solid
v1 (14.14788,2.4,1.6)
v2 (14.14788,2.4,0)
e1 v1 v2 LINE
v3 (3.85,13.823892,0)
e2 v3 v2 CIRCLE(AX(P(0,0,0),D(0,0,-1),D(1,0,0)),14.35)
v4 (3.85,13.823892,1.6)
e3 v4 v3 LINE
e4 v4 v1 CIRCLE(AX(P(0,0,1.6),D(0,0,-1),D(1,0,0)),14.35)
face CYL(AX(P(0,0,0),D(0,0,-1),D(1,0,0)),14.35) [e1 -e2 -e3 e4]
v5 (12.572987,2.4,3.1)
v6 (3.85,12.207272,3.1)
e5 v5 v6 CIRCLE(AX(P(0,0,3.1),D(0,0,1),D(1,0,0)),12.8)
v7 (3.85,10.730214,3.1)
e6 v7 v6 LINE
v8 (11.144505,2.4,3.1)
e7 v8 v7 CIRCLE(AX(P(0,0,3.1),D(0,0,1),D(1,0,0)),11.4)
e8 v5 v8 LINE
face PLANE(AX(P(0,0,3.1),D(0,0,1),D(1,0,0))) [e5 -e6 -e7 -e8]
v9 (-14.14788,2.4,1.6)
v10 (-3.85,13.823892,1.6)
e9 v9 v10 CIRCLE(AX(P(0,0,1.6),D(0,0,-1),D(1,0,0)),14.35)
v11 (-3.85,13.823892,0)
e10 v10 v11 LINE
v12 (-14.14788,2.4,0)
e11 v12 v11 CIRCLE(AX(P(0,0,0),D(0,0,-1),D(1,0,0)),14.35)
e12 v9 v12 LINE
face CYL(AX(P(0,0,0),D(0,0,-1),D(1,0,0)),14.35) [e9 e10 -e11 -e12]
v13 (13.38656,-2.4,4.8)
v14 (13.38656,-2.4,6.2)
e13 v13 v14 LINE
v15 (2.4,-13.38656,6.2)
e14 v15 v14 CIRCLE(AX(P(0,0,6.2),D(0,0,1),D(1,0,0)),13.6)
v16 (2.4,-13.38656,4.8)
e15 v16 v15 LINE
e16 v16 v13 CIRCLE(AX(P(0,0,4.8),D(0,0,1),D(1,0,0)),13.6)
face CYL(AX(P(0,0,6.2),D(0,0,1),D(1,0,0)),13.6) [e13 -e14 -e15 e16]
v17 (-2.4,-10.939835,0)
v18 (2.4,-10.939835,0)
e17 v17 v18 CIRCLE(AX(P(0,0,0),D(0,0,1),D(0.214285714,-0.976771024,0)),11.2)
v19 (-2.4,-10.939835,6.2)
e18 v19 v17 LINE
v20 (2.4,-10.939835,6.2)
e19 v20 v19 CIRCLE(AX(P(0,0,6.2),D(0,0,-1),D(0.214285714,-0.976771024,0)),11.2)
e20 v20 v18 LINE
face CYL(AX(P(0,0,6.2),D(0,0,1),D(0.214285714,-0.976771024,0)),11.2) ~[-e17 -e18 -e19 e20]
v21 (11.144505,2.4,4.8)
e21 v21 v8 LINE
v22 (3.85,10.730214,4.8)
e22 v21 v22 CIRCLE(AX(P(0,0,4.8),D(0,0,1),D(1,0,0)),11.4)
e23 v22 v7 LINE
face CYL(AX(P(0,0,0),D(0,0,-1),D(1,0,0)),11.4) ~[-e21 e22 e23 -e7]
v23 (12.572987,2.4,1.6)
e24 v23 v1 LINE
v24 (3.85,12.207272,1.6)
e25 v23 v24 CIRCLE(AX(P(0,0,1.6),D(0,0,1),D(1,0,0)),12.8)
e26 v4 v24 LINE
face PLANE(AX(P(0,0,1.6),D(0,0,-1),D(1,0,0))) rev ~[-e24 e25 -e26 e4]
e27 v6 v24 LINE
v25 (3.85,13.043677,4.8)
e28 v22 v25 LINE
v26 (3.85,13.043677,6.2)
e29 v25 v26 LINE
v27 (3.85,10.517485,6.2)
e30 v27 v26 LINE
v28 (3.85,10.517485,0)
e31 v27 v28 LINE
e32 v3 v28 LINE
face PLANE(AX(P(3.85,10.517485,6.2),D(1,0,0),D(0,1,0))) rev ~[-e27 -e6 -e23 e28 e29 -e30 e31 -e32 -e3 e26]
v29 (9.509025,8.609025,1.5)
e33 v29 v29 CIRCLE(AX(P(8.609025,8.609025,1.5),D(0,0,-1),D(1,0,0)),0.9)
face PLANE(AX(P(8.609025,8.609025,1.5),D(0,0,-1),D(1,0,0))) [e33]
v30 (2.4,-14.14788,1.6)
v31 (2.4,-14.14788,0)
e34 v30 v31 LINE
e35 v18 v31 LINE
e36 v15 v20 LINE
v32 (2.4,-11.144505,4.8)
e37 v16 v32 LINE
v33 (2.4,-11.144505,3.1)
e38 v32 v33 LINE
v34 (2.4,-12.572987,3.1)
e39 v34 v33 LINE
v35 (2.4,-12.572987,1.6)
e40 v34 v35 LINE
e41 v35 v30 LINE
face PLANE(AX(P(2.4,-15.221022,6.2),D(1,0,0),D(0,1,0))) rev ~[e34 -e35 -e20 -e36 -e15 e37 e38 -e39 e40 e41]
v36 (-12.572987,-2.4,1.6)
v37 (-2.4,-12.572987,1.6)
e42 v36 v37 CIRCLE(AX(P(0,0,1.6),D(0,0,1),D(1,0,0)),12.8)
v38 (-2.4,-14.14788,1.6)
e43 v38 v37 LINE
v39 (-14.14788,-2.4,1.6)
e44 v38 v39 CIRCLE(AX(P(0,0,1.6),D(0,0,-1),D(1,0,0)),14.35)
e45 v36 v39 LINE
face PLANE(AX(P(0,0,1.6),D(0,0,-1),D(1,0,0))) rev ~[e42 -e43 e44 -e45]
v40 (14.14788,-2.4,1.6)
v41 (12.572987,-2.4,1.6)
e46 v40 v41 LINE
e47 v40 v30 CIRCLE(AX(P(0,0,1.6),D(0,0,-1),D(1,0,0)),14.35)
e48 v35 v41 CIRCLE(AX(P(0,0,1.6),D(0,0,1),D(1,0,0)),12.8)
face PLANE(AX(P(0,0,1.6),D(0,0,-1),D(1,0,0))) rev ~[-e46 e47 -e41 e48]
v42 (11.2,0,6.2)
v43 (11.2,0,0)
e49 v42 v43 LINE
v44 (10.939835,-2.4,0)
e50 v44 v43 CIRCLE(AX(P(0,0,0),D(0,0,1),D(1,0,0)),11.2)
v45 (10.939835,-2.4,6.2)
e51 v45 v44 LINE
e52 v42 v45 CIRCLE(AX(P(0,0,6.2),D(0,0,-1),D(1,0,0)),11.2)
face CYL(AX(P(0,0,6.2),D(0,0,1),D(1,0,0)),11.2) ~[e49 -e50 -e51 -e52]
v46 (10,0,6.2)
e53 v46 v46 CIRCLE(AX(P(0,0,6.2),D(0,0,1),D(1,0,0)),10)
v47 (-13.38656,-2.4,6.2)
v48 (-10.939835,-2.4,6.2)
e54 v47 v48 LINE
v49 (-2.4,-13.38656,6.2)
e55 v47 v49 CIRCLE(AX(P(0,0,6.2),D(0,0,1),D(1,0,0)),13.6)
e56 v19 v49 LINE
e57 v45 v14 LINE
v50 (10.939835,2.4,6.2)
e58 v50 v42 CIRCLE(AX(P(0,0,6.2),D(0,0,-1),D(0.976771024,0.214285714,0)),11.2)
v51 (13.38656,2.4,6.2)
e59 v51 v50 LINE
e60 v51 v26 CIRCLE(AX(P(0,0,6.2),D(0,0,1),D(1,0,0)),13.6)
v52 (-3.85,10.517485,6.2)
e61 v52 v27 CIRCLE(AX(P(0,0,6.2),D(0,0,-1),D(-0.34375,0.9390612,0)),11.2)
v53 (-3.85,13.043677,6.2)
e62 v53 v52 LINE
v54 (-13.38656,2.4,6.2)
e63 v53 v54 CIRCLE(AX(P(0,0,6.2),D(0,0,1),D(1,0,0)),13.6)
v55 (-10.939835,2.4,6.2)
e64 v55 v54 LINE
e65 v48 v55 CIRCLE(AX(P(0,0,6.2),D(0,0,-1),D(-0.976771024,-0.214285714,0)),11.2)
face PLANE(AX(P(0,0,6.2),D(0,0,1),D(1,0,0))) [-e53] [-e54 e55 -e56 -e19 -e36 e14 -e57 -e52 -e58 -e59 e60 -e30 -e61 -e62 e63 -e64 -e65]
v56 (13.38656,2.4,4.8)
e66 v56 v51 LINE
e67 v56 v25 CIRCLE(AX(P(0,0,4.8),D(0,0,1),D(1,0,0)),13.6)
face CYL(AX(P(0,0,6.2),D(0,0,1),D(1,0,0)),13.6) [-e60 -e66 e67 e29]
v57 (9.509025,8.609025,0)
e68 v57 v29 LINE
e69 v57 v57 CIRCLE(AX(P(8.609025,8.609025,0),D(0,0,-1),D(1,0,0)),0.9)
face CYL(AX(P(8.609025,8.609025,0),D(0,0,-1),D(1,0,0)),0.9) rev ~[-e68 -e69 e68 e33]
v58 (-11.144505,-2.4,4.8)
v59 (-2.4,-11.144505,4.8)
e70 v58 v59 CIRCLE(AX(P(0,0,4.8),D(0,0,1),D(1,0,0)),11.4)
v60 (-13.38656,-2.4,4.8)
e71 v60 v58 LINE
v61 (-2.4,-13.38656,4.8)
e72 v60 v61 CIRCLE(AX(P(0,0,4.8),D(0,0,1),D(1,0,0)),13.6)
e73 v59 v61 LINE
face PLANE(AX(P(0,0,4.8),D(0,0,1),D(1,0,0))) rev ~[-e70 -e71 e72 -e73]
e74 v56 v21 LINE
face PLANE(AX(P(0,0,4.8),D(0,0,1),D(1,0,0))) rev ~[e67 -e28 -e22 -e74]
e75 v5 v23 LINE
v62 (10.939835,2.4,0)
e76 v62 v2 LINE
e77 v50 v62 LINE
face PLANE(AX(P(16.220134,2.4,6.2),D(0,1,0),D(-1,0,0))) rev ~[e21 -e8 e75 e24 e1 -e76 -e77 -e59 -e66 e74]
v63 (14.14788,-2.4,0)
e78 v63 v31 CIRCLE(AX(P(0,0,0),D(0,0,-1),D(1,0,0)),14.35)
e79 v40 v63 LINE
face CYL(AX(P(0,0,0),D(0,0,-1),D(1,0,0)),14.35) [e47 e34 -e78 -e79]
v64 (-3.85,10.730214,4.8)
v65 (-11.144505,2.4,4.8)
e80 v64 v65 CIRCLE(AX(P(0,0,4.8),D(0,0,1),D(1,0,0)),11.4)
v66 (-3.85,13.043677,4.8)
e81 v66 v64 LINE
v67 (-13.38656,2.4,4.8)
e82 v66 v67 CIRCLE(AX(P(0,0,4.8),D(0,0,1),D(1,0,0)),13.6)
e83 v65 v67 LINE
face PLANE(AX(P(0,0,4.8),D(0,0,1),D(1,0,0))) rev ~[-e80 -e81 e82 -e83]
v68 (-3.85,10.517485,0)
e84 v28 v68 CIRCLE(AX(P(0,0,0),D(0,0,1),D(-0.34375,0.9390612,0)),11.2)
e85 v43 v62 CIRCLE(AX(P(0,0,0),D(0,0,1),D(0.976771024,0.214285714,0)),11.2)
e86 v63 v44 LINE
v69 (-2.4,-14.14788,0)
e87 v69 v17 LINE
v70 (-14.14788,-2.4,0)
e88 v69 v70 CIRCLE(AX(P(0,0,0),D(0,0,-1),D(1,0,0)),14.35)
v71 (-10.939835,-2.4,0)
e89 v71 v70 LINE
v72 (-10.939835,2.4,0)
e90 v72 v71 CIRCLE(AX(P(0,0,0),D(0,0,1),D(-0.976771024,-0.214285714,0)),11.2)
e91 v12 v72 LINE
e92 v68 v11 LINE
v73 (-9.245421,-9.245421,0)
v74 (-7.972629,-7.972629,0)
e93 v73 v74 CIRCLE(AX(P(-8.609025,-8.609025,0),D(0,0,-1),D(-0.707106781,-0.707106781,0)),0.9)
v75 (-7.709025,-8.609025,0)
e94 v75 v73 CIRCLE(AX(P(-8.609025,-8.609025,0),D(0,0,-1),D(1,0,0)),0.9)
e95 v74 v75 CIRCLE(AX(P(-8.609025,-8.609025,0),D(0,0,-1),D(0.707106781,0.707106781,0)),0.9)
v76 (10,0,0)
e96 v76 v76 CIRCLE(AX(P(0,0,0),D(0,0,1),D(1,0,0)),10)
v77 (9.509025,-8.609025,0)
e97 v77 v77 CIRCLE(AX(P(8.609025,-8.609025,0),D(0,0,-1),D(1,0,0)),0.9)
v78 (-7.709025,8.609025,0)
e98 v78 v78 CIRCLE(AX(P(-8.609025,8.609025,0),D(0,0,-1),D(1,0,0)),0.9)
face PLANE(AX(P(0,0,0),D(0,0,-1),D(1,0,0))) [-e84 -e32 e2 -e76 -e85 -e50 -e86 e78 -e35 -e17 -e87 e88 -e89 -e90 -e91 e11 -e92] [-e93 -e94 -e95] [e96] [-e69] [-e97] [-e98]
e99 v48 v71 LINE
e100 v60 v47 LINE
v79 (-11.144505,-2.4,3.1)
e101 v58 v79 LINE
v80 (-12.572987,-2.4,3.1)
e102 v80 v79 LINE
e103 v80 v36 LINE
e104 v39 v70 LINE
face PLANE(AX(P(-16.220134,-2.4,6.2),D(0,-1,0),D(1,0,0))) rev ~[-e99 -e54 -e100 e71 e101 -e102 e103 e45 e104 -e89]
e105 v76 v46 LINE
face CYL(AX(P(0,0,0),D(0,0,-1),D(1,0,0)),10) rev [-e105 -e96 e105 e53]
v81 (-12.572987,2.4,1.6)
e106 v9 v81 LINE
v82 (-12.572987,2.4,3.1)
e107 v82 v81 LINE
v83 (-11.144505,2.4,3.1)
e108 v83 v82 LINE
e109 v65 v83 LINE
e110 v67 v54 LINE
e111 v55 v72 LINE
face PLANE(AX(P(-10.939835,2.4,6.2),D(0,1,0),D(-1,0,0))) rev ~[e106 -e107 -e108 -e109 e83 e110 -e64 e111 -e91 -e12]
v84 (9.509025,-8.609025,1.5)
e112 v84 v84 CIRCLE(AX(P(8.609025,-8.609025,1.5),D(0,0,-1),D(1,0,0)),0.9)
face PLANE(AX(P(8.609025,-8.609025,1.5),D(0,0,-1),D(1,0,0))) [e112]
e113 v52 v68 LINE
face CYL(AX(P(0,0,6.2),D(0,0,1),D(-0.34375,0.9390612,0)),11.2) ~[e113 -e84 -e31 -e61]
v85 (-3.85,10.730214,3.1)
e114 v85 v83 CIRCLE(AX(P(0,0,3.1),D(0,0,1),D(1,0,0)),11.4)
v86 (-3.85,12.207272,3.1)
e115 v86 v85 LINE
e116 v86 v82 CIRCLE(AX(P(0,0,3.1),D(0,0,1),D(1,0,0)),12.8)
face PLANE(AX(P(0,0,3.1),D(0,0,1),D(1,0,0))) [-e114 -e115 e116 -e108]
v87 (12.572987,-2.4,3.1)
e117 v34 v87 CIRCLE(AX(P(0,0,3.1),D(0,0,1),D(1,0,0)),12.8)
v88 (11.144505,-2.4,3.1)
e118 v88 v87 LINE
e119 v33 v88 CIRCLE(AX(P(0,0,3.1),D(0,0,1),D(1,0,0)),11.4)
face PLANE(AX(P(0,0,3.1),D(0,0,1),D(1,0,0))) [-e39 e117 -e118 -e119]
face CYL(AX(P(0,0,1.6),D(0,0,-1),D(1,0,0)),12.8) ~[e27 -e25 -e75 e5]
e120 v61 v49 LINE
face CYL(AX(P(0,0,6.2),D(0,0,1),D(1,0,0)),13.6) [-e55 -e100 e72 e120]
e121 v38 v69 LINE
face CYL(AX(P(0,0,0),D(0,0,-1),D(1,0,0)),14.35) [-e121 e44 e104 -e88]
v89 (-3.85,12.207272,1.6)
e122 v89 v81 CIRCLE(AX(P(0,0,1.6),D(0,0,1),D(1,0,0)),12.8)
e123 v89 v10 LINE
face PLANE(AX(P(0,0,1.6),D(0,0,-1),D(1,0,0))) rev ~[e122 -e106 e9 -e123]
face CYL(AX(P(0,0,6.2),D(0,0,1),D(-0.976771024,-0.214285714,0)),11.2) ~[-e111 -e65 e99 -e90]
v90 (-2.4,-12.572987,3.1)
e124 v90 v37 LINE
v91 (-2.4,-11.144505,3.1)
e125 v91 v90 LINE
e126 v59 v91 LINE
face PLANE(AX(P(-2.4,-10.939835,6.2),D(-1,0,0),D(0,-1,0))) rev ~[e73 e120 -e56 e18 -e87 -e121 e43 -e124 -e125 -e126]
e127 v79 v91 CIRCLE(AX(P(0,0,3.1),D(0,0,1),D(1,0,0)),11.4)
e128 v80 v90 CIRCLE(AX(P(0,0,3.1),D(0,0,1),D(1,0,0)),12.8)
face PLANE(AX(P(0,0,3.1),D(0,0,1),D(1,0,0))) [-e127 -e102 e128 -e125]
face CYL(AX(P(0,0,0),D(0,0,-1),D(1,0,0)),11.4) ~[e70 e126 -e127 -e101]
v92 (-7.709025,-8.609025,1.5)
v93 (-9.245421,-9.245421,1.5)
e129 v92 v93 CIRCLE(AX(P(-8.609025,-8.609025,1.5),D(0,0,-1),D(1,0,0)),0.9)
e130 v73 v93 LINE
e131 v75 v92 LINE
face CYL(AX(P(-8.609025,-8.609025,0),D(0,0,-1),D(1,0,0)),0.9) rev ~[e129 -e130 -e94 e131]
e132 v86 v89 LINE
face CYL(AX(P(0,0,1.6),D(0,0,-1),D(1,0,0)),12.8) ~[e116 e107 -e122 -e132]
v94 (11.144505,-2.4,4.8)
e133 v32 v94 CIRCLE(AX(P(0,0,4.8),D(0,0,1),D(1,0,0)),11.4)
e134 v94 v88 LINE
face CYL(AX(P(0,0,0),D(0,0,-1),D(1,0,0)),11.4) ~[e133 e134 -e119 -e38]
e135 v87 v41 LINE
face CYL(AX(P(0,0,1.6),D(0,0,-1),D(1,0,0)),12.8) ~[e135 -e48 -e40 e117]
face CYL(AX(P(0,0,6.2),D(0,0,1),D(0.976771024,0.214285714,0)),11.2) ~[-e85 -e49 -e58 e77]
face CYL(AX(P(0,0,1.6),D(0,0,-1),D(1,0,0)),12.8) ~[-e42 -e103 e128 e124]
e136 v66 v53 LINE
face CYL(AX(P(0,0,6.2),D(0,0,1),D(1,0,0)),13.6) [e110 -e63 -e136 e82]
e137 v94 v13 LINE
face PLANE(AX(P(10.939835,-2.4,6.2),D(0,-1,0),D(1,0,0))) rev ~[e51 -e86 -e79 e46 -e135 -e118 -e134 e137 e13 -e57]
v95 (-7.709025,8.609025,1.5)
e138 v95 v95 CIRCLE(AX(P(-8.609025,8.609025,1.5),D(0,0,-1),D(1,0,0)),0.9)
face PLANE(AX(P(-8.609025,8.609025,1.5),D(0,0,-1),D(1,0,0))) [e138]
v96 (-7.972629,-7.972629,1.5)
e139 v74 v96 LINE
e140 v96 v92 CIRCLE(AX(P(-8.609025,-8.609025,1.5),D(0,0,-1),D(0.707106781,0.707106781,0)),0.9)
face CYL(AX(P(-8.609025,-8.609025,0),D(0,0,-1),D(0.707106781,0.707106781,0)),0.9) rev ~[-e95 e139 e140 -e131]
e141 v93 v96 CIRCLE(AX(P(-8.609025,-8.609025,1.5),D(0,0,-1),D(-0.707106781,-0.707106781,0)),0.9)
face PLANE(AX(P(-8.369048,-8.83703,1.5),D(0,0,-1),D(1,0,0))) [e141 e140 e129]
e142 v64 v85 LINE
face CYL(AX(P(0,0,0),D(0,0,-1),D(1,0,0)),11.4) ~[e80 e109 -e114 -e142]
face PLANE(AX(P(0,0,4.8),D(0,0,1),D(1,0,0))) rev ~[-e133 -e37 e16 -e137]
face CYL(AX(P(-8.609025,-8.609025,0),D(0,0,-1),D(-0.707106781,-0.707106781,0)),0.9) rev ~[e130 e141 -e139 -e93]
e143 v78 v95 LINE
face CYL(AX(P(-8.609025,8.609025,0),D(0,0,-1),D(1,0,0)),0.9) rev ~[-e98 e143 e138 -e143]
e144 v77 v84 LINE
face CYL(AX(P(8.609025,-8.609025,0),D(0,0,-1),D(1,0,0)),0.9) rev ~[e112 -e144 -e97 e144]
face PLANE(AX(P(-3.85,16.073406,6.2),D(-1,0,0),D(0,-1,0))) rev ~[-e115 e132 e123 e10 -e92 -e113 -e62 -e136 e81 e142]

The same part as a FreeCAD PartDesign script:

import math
import FreeCAD as App
import Part
import Sketcher

V = App.Vector

doc = App.newDocument("Part")
body = doc.addObject("PartDesign::Body", "Body")

sketch1 = body.newObject("Sketcher::SketchObject", "Sketch")
sketch1.AttachmentSupport = (doc.getObject("XY_Plane"), [""])
sketch1.MapMode = "FlatFace"
sketch1.addGeometry([
    Part.Circle(V(0, 0, 0), V(0, 0, 1), 11),
    Part.Circle(V(0, 0, 0), V(0, 0, 1), 10),
], False)
sketch1.addConstraint([
    Sketcher.Constraint("Coincident", 0, 3, -1, 1),
    Sketcher.Constraint("Coincident", 1, 3, -1, 1),
    Sketcher.Constraint("Diameter", 1, 20.0),
    Sketcher.Constraint("Diameter", 0, 22.8),
])
pad1 = body.newObject("PartDesign::Pad", "Pad")
pad1.Profile = sketch1
pad1.Length = 6.2

sketch2 = body.newObject("Sketcher::SketchObject", "Sketch001")
sketch2.AttachmentSupport = (doc.getObject("XY_Plane"), [""])
sketch2.MapMode = "FlatFace"
sketch2.AttachmentOffset = App.Placement(V(0, 0, 6.2), App.Rotation())
sketch2.addGeometry([
    Part.Circle(V(0, 0, 0), V(0, 0, 1), 14),
    Part.Circle(V(0, 0, 0), V(0, 0, 1), 11),
], False)
sketch2.addConstraint([
    Sketcher.Constraint("Coincident", 0, 3, -1, 1),
    Sketcher.Constraint("Coincident", 1, 3, -1, 1),
    Sketcher.Constraint("Diameter", 0, 27.2),
    Sketcher.Constraint("Diameter", 1, 22.8),
])
pad2 = body.newObject("PartDesign::Pad", "Pad001")
pad2.Profile = sketch2
pad2.Length = 1.4
pad2.Reversed = True

sketch3 = body.newObject("Sketcher::SketchObject", "Sketch002")
sketch3.AttachmentSupport = (doc.getObject("XY_Plane"), [""])
sketch3.MapMode = "FlatFace"
sketch3.addGeometry([
    Part.Circle(V(0, 0, 0), V(0, 0, 1), 14),
    Part.Circle(V(0, 0, 0), V(0, 0, 1), 11),
], False)
sketch3.addConstraint([
    Sketcher.Constraint("Coincident", 0, 3, -1, 1),
    Sketcher.Constraint("Coincident", 1, 3, -1, 1),
    Sketcher.Constraint("Diameter", 0, 28.7),
    Sketcher.Constraint("Diameter", 1, 22.8),
])
pad3 = body.newObject("PartDesign::Pad", "Pad002")
pad3.Profile = sketch3
pad3.Length = 1.6

sketch4 = body.newObject("Sketcher::SketchObject", "Sketch003")
sketch4.AttachmentSupport = (doc.getObject("XY_Plane"), [""])
sketch4.MapMode = "FlatFace"
sketch4.AttachmentOffset = App.Placement(V(0, 0, 1.6), App.Rotation())
sketch4.addGeometry([
    Part.Circle(V(0, 0, 0), V(0, 0, 1), 13),
    Part.Circle(V(0, 0, 0), V(0, 0, 1), 11),
], False)
sketch4.addConstraint([
    Sketcher.Constraint("Coincident", 0, 3, -1, 1),
    Sketcher.Constraint("Coincident", 1, 3, -1, 1),
    Sketcher.Constraint("Diameter", 0, 25.6),
    Sketcher.Constraint("Diameter", 1, 22.8),
])
pad4 = body.newObject("PartDesign::Pad", "Pad003")
pad4.Profile = sketch4
pad4.Length = 1.5

sketch5 = body.newObject("Sketcher::SketchObject", "Sketch004")
sketch5.AttachmentSupport = (doc.getObject("XY_Plane"), [""])
sketch5.MapMode = "FlatFace"
sketch5.AttachmentOffset = App.Placement(V(0, 0, 6.2), App.Rotation())
sketch5.addGeometry([
    Part.ArcOfCircle(Part.Circle(V(0, 0, 0), V(0, 0, 1), 11.2), math.radians(70), math.radians(110)),
    Part.LineSegment(V(3.9, 10.5, 0), V(3.9, 16.1, 0)),
    Part.LineSegment(V(3.9, 16.1, 0), V(-3.9, 16.1, 0)),
    Part.LineSegment(V(-3.9, 16.1, 0), V(-3.9, 10.5, 0)),
    Part.LineSegment(V(-16.2, 2.4, 0), V(-16.2, -2.4, 0)),
    Part.LineSegment(V(-16.2, -2.4, 0), V(-10.9, -2.4, 0)),
    Part.ArcOfCircle(Part.Circle(V(0, 0, 0), V(0, 0, 1), 11.2), math.radians(168), math.radians(192)),
    Part.LineSegment(V(-10.9, 2.4, 0), V(-16.2, 2.4, 0)),
    Part.ArcOfCircle(Part.Circle(V(0, 0, 0), V(0, 0, 1), 11.2), math.radians(0), math.radians(12.37)),
    Part.ArcOfCircle(Part.Circle(V(0, 0, 0), V(0, 0, 1), 11.2), math.radians(-12.37), math.radians(0)),
    Part.LineSegment(V(10.9, -2.4, 0), V(16.2, -2.4, 0)),
    Part.LineSegment(V(16.2, -2.4, 0), V(16.2, 2.4, 0)),
    Part.LineSegment(V(16.2, 2.4, 0), V(10.9, 2.4, 0)),
    Part.ArcOfCircle(Part.Circle(V(0, 0, 0), V(0, 0, 1), 11.2), math.radians(-102), math.radians(-78)),
    Part.LineSegment(V(-2.4, -10.9, 0), V(-2.4, -15.2, 0)),
    Part.LineSegment(V(-2.4, -15.2, 0), V(2.4, -15.2, 0)),
    Part.LineSegment(V(2.4, -15.2, 0), V(2.4, -10.9, 0)),
], False)
sketch5.addConstraint([
    Sketcher.Constraint("Coincident", 0, 1, 1, 1),
    Sketcher.Constraint("Coincident", 1, 2, 2, 1),
    Sketcher.Constraint("Coincident", 2, 2, 3, 1),
    Sketcher.Constraint("Coincident", 3, 2, 0, 2),
    Sketcher.Constraint("Coincident", 4, 2, 5, 1),
    Sketcher.Constraint("Coincident", 5, 2, 6, 2),
    Sketcher.Constraint("Coincident", 6, 1, 7, 1),
    Sketcher.Constraint("Coincident", 7, 2, 4, 1),
    Sketcher.Constraint("Tangent", 8, 1, 9, 2),
    Sketcher.Constraint("Coincident", 9, 1, 10, 1),
    Sketcher.Constraint("Coincident", 10, 2, 11, 1),
    Sketcher.Constraint("Coincident", 11, 2, 12, 1),
    Sketcher.Constraint("Coincident", 12, 2, 8, 2),
    Sketcher.Constraint("Coincident", 13, 1, 14, 1),
    Sketcher.Constraint("Coincident", 14, 2, 15, 1),
    Sketcher.Constraint("Coincident", 15, 2, 16, 1),
    Sketcher.Constraint("Coincident", 16, 2, 13, 2),
    Sketcher.Constraint("Vertical", 1),
    Sketcher.Constraint("Horizontal", 2),
    Sketcher.Constraint("Vertical", 3),
    Sketcher.Constraint("Vertical", 4),
    Sketcher.Constraint("Horizontal", 5),
    Sketcher.Constraint("Horizontal", 7),
    Sketcher.Constraint("Horizontal", 10),
    Sketcher.Constraint("Vertical", 11),
    Sketcher.Constraint("Horizontal", 12),
    Sketcher.Constraint("Vertical", 14),
    Sketcher.Constraint("Horizontal", 15),
    Sketcher.Constraint("Vertical", 16),
    Sketcher.Constraint("Coincident", 0, 3, -1, 1),
    Sketcher.Constraint("Coincident", 6, 3, -1, 1),
    Sketcher.Constraint("Coincident", 8, 3, -1, 1),
    Sketcher.Constraint("Coincident", 13, 3, -1, 1),
    Sketcher.Constraint("Equal", 0, 6),
    Sketcher.Constraint("Equal", 6, 8),
    Sketcher.Constraint("Equal", 8, 9),
    Sketcher.Constraint("Equal", 9, 13),
    Sketcher.Constraint("Symmetric", 7, 2, 10, 2, -1, 1),
    Sketcher.Constraint("PointOnObject", 8, 1, -1),
    Sketcher.Constraint("Horizontal", 0, 1, 3, 2),
    Sketcher.Constraint("Horizontal", 5, 2, 9, 1),
    Sketcher.Constraint("Horizontal", 7, 2, 11, 2),
    Sketcher.Constraint("Horizontal", 13, 1, 16, 2),
    Sketcher.Constraint("Equal", 15, 4),
    Sketcher.Constraint("Radius", 0, 11.2),
    Sketcher.Constraint("DistanceX", 2, 2, 2, 1, 7.7),
    Sketcher.Constraint("DistanceX", 15, 1, 15, 2, 4.8),
    Sketcher.Constraint("DistanceX", 5, 1, 5, 2, 5.280298),
    Sketcher.Constraint("DistanceY", 1, 1, 1, 2, 5.55592),
    Sketcher.Constraint("DistanceY", 14, 2, 14, 1, 4.281187),
])
pocket1 = body.newObject("PartDesign::Pocket", "Pocket")
pocket1.Profile = sketch5
pocket1.Length = 25

sketch6 = body.newObject("Sketcher::SketchObject", "Sketch005")
sketch6.AttachmentSupport = (doc.getObject("XY_Plane"), [""])
sketch6.MapMode = "FlatFace"
sketch6.addGeometry([
    Part.ArcOfCircle(Part.Circle(V(-8.6, -8.6, 0), V(0, 0, 1), 0.9), math.radians(-135), math.radians(0)),
    Part.ArcOfCircle(Part.Circle(V(-8.6, -8.6, 0), V(0, 0, 1), 0.9), math.radians(45), math.radians(225)),
    Part.ArcOfCircle(Part.Circle(V(-8.6, -8.6, 0), V(0, 0, 1), 0.9), math.radians(0), math.radians(45)),
    Part.Circle(V(8.6, -8.6, 0), V(0, 0, 1), 0.9),
    Part.Circle(V(8.6, 8.6, 0), V(0, 0, 1), 0.9),
    Part.Circle(V(-8.6, 8.6, 0), V(0, 0, 1), 0.9),
], False)
sketch6.addConstraint([
    Sketcher.Constraint("Tangent", 0, 1, 1, 2),
    Sketcher.Constraint("Tangent", 1, 1, 2, 2),
    Sketcher.Constraint("Tangent", 2, 1, 0, 2),
    Sketcher.Constraint("Equal", 2, 3),
    Sketcher.Constraint("Equal", 3, 4),
    Sketcher.Constraint("Equal", 4, 5),
    Sketcher.Constraint("Symmetric", 0, 3, 4, 3, -1, 1),
    Sketcher.Constraint("Symmetric", 3, 3, 5, 3, -1, 1),
    Sketcher.Constraint("Symmetric", 0, 3, 3, 3, -2),
    Sketcher.Constraint("Horizontal", 3, 3, 2, 1),
    Sketcher.Constraint("Diameter", 3, 1.8),
    Sketcher.Constraint("DistanceX", 0, 1, -1, 1, 9.245421),
    Sketcher.Constraint("DistanceY", 0, 1, -1, 1, 9.245421),
    Sketcher.Constraint("DistanceX", 1, 1, -1, 1, 7.972629),
    Sketcher.Constraint("DistanceX", 0, 3, 3, 3, 17.21805),
])
pocket2 = body.newObject("PartDesign::Pocket", "Pocket001")
pocket2.Profile = sketch6
pocket2.Length = 1.5
pocket2.Reversed = True

doc.recompute()
